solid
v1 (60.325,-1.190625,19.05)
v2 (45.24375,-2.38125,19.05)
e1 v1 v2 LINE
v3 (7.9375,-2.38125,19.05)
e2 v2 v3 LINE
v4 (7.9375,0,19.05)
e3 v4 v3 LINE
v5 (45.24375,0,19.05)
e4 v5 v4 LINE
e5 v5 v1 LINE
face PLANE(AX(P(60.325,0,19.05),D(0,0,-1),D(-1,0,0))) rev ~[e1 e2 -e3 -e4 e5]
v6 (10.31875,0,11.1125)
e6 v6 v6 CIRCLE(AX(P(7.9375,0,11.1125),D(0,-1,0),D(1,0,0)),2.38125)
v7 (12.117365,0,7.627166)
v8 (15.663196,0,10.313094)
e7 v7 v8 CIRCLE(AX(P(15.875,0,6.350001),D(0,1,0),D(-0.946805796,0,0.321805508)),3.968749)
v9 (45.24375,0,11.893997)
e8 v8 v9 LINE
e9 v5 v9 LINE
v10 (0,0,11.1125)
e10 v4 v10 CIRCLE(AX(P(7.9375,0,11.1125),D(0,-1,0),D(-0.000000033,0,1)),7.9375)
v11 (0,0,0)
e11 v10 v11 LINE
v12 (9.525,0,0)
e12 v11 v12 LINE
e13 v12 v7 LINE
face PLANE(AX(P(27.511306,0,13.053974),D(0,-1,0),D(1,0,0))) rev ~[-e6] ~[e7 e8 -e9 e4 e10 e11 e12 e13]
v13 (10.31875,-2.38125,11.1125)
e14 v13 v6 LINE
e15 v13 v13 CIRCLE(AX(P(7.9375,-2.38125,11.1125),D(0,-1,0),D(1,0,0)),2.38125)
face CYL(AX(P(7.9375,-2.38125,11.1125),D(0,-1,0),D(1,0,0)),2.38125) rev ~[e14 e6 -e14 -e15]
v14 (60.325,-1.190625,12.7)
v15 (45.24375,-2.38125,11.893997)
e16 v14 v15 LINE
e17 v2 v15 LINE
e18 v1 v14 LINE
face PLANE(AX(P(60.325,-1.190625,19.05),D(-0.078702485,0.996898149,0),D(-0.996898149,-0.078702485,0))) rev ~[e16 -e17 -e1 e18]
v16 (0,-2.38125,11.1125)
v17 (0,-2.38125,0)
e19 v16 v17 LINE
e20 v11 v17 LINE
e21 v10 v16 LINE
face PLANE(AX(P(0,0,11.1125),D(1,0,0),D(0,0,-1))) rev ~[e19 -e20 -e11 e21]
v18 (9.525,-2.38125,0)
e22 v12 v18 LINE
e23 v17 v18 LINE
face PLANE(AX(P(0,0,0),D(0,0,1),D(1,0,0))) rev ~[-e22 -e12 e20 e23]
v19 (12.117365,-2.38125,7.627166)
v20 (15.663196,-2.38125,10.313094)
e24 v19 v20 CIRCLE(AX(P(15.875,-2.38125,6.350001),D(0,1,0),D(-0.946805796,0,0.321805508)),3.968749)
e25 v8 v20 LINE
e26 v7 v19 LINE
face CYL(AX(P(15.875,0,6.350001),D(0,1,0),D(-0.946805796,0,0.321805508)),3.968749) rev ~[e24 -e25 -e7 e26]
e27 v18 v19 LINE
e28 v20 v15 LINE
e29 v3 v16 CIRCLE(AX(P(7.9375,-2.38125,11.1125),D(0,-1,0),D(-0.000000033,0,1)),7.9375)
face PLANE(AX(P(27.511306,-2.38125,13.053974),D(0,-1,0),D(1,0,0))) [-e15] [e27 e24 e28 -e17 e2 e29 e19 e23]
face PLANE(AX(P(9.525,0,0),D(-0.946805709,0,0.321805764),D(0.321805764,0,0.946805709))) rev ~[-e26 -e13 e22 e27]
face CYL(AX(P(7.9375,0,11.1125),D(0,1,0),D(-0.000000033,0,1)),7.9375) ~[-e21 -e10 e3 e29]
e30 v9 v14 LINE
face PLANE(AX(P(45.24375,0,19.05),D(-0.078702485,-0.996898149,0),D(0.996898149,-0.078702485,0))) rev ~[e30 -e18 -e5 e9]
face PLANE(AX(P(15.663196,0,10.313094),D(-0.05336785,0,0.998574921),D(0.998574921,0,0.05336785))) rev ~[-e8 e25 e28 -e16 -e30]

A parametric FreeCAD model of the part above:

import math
import FreeCAD as App
import Part
import Sketcher

V = App.Vector
Q = App.Units.Quantity

doc = App.newDocument("Part")
body = doc.addObject("PartDesign::Body", "Body")

# Sketch on XZ plane
sketch1 = doc.addObject("Sketcher::SketchObject", "Sketch")
body.addObject(sketch1)
sketch1.AttachmentSupport = (doc.XZ_Plane, [""])
sketch1.MapMode = "FlatFace"
sketch1.addGeometry(Part.LineSegment(V(60.3, 19.1, 0), V(7.9, 19.1, 0)), False)
sketch1.addGeometry(Part.ArcOfCircle(Part.Circle(V(7.9, 11.1, 0), V(0, 0, 1), 7.9), math.radians(90), math.radians(180)), False)
sketch1.addGeometry(Part.LineSegment(V(0, 11.1, 0), V(0, 0, 0)), False)
sketch1.addGeometry(Part.LineSegment(V(0, 0, 0), V(9.5, 0, 0)), False)
sketch1.addGeometry(Part.LineSegment(V(9.5, 0, 0), V(12.1, 7.6, 0)), False)
sketch1.addGeometry(Part.ArcOfCircle(Part.Circle(V(15.9, 6.4, 0), V(0, 0, 1), 4), math.radians(93), math.radians(161)), False)
sketch1.addGeometry(Part.LineSegment(V(15.7, 10.3, 0), V(60.3, 12.7, 0)), False)
sketch1.addGeometry(Part.LineSegment(V(60.3, 12.7, 0), V(60.3, 19.1, 0)), False)
sketch1.addConstraint(Sketcher.Constraint("Tangent", 0, 2, 1, 1))
sketch1.addConstraint(Sketcher.Constraint("Tangent", 1, 2, 2, 1))
sketch1.addConstraint(Sketcher.Constraint("Coincident", 2, 2, 3, 1))
sketch1.addConstraint(Sketcher.Constraint("Coincident", 3, 2, 4, 1))
sketch1.addConstraint(Sketcher.Constraint("Tangent", 4, 2, 5, 2))
sketch1.addConstraint(Sketcher.Constraint("Tangent", 5, 1, 6, 1))
sketch1.addConstraint(Sketcher.Constraint("Coincident", 6, 2, 7, 1))
sketch1.addConstraint(Sketcher.Constraint("Coincident", 7, 2, 0, 1))
sketch1.addConstraint(Sketcher.Constraint("Horizontal", 0))
sketch1.addConstraint(Sketcher.Constraint("Vertical", 2))
sketch1.addConstraint(Sketcher.Constraint("Horizontal", 3))
sketch1.addConstraint(Sketcher.Constraint("Vertical", 7))
sketch1.addConstraint(Sketcher.Constraint("Coincident", 2, 2, -1, 1))
sketch1.addConstraint(Sketcher.Constraint("Radius", 1, Q("0.3125 in")))
sketch1.addConstraint(Sketcher.Constraint("Radius", 5, Q("0.15625 in")))
sketch1.addConstraint(Sketcher.Constraint("DistanceX", 3, 2, 6, 2, Q("2 in")))
sketch1.addConstraint(Sketcher.Constraint("DistanceY", 7, 1, 7, 2, Q("0.25 in")))
sketch1.addConstraint(Sketcher.Constraint("DistanceY", -1, 1, 6, 2, Q("0.5 in")))
sketch1.addConstraint(Sketcher.Constraint("DistanceY", 5, 3, 0, 2, Q("0.5 in")))
sketch1.addConstraint(Sketcher.Constraint("DistanceX", 0, 2, 0, 1, Q("2.0625 in")))
sketch1.addConstraint(Sketcher.Constraint("DistanceX", 3, 2, 5, 3, Q("0.25 in")))
pad1 = doc.addObject("PartDesign::Pad", "Pad")
body.addObject(pad1)
pad1.Profile = sketch1
pad1.Length = Q("0.09375 in")

# Sketch on XZ plane
sketch2 = doc.addObject("Sketcher::SketchObject", "Sketch001")
body.addObject(sketch2)
sketch2.AttachmentSupport = (doc.XZ_Plane, [""])
sketch2.MapMode = "FlatFace"
sketch2.AttachmentOffset = App.Placement(V(0, 0, 0.09375 * 25.4), App.Rotation())
sketch2.addGeometry(Part.Circle(V(7.9, 11.1, 0), V(0, 0, 1), 2.4), False)
sketch2.addConstraint(Sketcher.Constraint("Diameter", 0, Q("0.1875 in")))
sketch2.addConstraint(Sketcher.Constraint("DistanceX", -1, 1, 0, 3, Q("0.3125 in")))
sketch2.addConstraint(Sketcher.Constraint("DistanceY", -1, 1, 0, 3, Q("0.4375 in")))
pocket1 = doc.addObject("PartDesign::Pocket", "Pocket")
body.addObject(pocket1)
pocket1.Profile = sketch2
pocket1.Length = Q("1 in")

# Sketch on XY plane
sketch3 = doc.addObject("Sketcher::SketchObject", "Sketch002")
body.addObject(sketch3)
sketch3.AttachmentSupport = (doc.XY_Plane, [""])
sketch3.MapMode = "FlatFace"
sketch3.AttachmentOffset = App.Placement(V(0, 0, 0.75 * 25.4), App.Rotation())
sketch3.addGeometry(Part.LineSegment(V(60.3, -2.4, 0), V(60.3, -1.2, 0)), False)
sketch3.addGeometry(Part.LineSegment(V(60.3, -1.2, 0), V(45.2, -2.4, 0)), False)
sketch3.addGeometry(Part.LineSegment(V(45.2, -2.4, 0), V(60.3, -2.4, 0)), False)
sketch3.addGeometry(Part.LineSegment(V(60.3, 0, 0), V(45.2, 0, 0)), False)
sketch3.addGeometry(Part.LineSegment(V(45.2, 0, 0), V(60.3, -1.2, 0)), False)
sketch3.addGeometry(Part.LineSegment(V(60.3, -1.2, 0), V(60.3, 0, 0)), False)
sketch3.addConstraint(Sketcher.Constraint("Coincident", 0, 2, 1, 1))
sketch3.addConstraint(Sketcher.Constraint("Coincident", 1, 2, 2, 1))
sketch3.addConstraint(Sketcher.Constraint("Coincident", 2, 2, 0, 1))
sketch3.addConstraint(Sketcher.Constraint("Coincident", 3, 2, 4, 1))
sketch3.addConstraint(Sketcher.Constraint("Coincident", 4, 2, 5, 1))
sketch3.addConstraint(Sketcher.Constraint("Coincident", 5, 2, 3, 1))
sketch3.addConstraint(Sketcher.Constraint("Vertical", 0))
sketch3.addConstraint(Sketcher.Constraint("Horizontal", 2))
sketch3.addConstraint(Sketcher.Constraint("Horizontal", 3))
sketch3.addConstraint(Sketcher.Constraint("Vertical", 5))
sketch3.addConstraint(Sketcher.Constraint("Coincident", 4, 2, 0, 2))
sketch3.addConstraint(Sketcher.Constraint("PointOnObject", 3, 2, -1))
sketch3.addConstraint(Sketcher.Constraint("Vertical", 1, 2, 3, 2))
sketch3.addConstraint(Sketcher.Constraint("Equal", 0, 5))
sketch3.addConstraint(Sketcher.Constraint("DistanceX", 2, 1, 2, 2, Q("0.59375 in")))
sketch3.addConstraint(Sketcher.Constraint("DistanceY", 0, 1, 0, 2, Q("0.046875 in")))
sketch3.addConstraint(Sketcher.Constraint("DistanceX", -1, 1, 0, 2, Q("2.375 in")))
pocket2 = doc.addObject("PartDesign::Pocket", "Pocket001")
body.addObject(pocket2)
pocket2.Profile = sketch3
pocket2.Length = Q("1 in")

doc.recompute()
